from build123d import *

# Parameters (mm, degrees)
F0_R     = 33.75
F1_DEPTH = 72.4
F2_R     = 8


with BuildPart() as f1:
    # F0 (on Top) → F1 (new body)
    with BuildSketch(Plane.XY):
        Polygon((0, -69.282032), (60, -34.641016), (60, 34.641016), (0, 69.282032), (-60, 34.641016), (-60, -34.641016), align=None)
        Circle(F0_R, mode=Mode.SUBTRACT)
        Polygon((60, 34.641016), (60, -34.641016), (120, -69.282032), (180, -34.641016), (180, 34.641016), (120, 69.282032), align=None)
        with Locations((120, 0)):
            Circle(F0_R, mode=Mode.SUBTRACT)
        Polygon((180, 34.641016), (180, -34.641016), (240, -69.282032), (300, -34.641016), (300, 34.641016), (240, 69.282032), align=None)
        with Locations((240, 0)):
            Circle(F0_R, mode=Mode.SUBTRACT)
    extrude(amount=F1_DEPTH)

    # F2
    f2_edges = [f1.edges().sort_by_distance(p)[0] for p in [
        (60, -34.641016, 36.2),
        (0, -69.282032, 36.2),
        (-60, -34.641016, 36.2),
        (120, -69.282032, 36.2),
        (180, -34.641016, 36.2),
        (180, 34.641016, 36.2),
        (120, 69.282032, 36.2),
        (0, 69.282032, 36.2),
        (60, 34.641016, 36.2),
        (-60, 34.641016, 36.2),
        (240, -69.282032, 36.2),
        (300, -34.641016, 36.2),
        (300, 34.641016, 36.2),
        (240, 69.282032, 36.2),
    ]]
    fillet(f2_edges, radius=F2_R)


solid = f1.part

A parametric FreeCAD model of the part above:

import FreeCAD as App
import Part
import Sketcher

V = App.Vector
Q = App.Units.Quantity


def edges_at(feature, points):
    """Names of the edges that pass closest to the given points."""
    edges = feature.Shape.Edges
    near = lambda p: min(range(len(edges)), key=lambda i: edges[i].distToShape(Part.Vertex(*p))[0])
    return sorted({f"Edge{near(p) + 1}" for p in points})


def add_polygon(sketch, points):
    """Adds a closed chain of lines whose ends are joined by coincident constraints."""
    first, n = sketch.GeometryCount, len(points)
    for a, b in zip(points, points[1:] + points[:1]):
        sketch.addGeometry(Part.LineSegment(App.Vector(*a, 0), App.Vector(*b, 0)), False)
    for i in range(n):
        sketch.addConstraint(Sketcher.Constraint("Coincident", first + i, 2, first + (i + 1) % n, 1))

doc = App.newDocument("Part")
body = doc.addObject("PartDesign::Body", "Body")

sketch1 = body.newObject("Sketcher::SketchObject", "Sketch")
sketch1.AttachmentSupport = (doc.getObject("XY_Plane"), [""])
sketch1.MapMode = "FlatFace"
add_polygon(sketch1, [(0, -69), (60, -35), (120, -69), (180, -35), (240, -69), (300, -35), (300, 35), (240, 69), (180, 35), (120, 69), (60, 35), (0, 69), (-60, 35), (-60, -35)])
sketch1.addGeometry(Part.Circle(V(0, 0, 0), V(0, 0, 1), 34), False)
sketch1.addGeometry(Part.Circle(V(120, 0, 0), V(0, 0, 1), 34), False)
sketch1.addGeometry(Part.Circle(V(240, 0, 0), V(0, 0, 1), 34), False)
sketch1.addConstraint(Sketcher.Constraint("Vertical", 5))
sketch1.addConstraint(Sketcher.Constraint("Vertical", 12))
sketch1.addConstraint(Sketcher.Constraint("Coincident", 14, 3, -1, 1))
sketch1.addConstraint(Sketcher.Constraint("Equal", 14, 15))
sketch1.addConstraint(Sketcher.Constraint("Equal", 15, 16))
sketch1.addConstraint(Sketcher.Constraint("Symmetric", 0, 2, 11, 2, -1, 1))
sketch1.addConstraint(Sketcher.Constraint("Symmetric", 9, 2, 12, 2, -1, 1))
sketch1.addConstraint(Sketcher.Constraint("Symmetric", 10, 2, 13, 2, -1, 1))
sketch1.addConstraint(Sketcher.Constraint("Symmetric", 3, 2, 6, 2, -1))
sketch1.addConstraint(Sketcher.Constraint("Symmetric", 2, 2, 7, 2, -1))
sketch1.addConstraint(Sketcher.Constraint("Symmetric", 1, 2, 8, 2, -1))
sketch1.addConstraint(Sketcher.Constraint("PointOnObject", 15, 3, -1))
sketch1.addConstraint(Sketcher.Constraint("PointOnObject", 16, 3, -1))
sketch1.addConstraint(Sketcher.Constraint("PointOnObject", 10, 2, -2))
sketch1.addConstraint(Sketcher.Constraint("Parallel", 0, 2))
sketch1.addConstraint(Sketcher.Constraint("Parallel", 1, 3))
sketch1.addConstraint(Sketcher.Constraint("Parallel", 2, 4))
sketch1.addConstraint(Sketcher.Constraint("Parallel", 3, 6))
sketch1.addConstraint(Sketcher.Constraint("Parallel", 4, 7))
sketch1.addConstraint(Sketcher.Constraint("Parallel", 7, 9))
sketch1.addConstraint(Sketcher.Constraint("Horizontal", 0, 2, 2, 2))
sketch1.addConstraint(Sketcher.Constraint("Horizontal", 1, 2, 3, 2))
sketch1.addConstraint(Sketcher.Constraint("Horizontal", 2, 2, 4, 2))
sketch1.addConstraint(Sketcher.Constraint("Horizontal", 8, 2, 10, 2))
sketch1.addConstraint(Sketcher.Constraint("Vertical", 15, 3, 1, 2))
sketch1.addConstraint(Sketcher.Constraint("Vertical", 16, 3, 3, 2))
sketch1.addConstraint(Sketcher.Constraint("Diameter", 14, 67.5))
sketch1.addConstraint(Sketcher.Constraint("Angle", 0, Q("30 deg")))
sketch1.addConstraint(Sketcher.Constraint("DistanceX", -1, 1, 15, 3, 120.0))
sketch1.addConstraint(Sketcher.Constraint("DistanceY", 5, 1, 5, 2, 69.282032))
pad1 = body.newObject("PartDesign::Pad", "Pad")
pad1.Profile = sketch1
pad1.Length = 72.4
doc.recompute()

fillet = body.newObject("PartDesign::Fillet", "Fillet")
fillet.Base = (pad1, edges_at(pad1, [
    (60, -34.641, 36.2),
    (0, -69.282, 36.2),
    (-60, -34.641, 36.2),
    (120, -69.282, 36.2),
    (180, -34.641, 36.2),
    (180, 34.641, 36.2),
    (120, 69.282, 36.2),
    (0, 69.282, 36.2),
    (60, 34.641, 36.2),
    (-60, 34.641, 36.2),
    (240, -69.282, 36.2),
    (300, -34.641, 36.2),
    (300, 34.641, 36.2),
    (240, 69.282, 36.2),
]))
fillet.Radius = 8

doc.recompute()
